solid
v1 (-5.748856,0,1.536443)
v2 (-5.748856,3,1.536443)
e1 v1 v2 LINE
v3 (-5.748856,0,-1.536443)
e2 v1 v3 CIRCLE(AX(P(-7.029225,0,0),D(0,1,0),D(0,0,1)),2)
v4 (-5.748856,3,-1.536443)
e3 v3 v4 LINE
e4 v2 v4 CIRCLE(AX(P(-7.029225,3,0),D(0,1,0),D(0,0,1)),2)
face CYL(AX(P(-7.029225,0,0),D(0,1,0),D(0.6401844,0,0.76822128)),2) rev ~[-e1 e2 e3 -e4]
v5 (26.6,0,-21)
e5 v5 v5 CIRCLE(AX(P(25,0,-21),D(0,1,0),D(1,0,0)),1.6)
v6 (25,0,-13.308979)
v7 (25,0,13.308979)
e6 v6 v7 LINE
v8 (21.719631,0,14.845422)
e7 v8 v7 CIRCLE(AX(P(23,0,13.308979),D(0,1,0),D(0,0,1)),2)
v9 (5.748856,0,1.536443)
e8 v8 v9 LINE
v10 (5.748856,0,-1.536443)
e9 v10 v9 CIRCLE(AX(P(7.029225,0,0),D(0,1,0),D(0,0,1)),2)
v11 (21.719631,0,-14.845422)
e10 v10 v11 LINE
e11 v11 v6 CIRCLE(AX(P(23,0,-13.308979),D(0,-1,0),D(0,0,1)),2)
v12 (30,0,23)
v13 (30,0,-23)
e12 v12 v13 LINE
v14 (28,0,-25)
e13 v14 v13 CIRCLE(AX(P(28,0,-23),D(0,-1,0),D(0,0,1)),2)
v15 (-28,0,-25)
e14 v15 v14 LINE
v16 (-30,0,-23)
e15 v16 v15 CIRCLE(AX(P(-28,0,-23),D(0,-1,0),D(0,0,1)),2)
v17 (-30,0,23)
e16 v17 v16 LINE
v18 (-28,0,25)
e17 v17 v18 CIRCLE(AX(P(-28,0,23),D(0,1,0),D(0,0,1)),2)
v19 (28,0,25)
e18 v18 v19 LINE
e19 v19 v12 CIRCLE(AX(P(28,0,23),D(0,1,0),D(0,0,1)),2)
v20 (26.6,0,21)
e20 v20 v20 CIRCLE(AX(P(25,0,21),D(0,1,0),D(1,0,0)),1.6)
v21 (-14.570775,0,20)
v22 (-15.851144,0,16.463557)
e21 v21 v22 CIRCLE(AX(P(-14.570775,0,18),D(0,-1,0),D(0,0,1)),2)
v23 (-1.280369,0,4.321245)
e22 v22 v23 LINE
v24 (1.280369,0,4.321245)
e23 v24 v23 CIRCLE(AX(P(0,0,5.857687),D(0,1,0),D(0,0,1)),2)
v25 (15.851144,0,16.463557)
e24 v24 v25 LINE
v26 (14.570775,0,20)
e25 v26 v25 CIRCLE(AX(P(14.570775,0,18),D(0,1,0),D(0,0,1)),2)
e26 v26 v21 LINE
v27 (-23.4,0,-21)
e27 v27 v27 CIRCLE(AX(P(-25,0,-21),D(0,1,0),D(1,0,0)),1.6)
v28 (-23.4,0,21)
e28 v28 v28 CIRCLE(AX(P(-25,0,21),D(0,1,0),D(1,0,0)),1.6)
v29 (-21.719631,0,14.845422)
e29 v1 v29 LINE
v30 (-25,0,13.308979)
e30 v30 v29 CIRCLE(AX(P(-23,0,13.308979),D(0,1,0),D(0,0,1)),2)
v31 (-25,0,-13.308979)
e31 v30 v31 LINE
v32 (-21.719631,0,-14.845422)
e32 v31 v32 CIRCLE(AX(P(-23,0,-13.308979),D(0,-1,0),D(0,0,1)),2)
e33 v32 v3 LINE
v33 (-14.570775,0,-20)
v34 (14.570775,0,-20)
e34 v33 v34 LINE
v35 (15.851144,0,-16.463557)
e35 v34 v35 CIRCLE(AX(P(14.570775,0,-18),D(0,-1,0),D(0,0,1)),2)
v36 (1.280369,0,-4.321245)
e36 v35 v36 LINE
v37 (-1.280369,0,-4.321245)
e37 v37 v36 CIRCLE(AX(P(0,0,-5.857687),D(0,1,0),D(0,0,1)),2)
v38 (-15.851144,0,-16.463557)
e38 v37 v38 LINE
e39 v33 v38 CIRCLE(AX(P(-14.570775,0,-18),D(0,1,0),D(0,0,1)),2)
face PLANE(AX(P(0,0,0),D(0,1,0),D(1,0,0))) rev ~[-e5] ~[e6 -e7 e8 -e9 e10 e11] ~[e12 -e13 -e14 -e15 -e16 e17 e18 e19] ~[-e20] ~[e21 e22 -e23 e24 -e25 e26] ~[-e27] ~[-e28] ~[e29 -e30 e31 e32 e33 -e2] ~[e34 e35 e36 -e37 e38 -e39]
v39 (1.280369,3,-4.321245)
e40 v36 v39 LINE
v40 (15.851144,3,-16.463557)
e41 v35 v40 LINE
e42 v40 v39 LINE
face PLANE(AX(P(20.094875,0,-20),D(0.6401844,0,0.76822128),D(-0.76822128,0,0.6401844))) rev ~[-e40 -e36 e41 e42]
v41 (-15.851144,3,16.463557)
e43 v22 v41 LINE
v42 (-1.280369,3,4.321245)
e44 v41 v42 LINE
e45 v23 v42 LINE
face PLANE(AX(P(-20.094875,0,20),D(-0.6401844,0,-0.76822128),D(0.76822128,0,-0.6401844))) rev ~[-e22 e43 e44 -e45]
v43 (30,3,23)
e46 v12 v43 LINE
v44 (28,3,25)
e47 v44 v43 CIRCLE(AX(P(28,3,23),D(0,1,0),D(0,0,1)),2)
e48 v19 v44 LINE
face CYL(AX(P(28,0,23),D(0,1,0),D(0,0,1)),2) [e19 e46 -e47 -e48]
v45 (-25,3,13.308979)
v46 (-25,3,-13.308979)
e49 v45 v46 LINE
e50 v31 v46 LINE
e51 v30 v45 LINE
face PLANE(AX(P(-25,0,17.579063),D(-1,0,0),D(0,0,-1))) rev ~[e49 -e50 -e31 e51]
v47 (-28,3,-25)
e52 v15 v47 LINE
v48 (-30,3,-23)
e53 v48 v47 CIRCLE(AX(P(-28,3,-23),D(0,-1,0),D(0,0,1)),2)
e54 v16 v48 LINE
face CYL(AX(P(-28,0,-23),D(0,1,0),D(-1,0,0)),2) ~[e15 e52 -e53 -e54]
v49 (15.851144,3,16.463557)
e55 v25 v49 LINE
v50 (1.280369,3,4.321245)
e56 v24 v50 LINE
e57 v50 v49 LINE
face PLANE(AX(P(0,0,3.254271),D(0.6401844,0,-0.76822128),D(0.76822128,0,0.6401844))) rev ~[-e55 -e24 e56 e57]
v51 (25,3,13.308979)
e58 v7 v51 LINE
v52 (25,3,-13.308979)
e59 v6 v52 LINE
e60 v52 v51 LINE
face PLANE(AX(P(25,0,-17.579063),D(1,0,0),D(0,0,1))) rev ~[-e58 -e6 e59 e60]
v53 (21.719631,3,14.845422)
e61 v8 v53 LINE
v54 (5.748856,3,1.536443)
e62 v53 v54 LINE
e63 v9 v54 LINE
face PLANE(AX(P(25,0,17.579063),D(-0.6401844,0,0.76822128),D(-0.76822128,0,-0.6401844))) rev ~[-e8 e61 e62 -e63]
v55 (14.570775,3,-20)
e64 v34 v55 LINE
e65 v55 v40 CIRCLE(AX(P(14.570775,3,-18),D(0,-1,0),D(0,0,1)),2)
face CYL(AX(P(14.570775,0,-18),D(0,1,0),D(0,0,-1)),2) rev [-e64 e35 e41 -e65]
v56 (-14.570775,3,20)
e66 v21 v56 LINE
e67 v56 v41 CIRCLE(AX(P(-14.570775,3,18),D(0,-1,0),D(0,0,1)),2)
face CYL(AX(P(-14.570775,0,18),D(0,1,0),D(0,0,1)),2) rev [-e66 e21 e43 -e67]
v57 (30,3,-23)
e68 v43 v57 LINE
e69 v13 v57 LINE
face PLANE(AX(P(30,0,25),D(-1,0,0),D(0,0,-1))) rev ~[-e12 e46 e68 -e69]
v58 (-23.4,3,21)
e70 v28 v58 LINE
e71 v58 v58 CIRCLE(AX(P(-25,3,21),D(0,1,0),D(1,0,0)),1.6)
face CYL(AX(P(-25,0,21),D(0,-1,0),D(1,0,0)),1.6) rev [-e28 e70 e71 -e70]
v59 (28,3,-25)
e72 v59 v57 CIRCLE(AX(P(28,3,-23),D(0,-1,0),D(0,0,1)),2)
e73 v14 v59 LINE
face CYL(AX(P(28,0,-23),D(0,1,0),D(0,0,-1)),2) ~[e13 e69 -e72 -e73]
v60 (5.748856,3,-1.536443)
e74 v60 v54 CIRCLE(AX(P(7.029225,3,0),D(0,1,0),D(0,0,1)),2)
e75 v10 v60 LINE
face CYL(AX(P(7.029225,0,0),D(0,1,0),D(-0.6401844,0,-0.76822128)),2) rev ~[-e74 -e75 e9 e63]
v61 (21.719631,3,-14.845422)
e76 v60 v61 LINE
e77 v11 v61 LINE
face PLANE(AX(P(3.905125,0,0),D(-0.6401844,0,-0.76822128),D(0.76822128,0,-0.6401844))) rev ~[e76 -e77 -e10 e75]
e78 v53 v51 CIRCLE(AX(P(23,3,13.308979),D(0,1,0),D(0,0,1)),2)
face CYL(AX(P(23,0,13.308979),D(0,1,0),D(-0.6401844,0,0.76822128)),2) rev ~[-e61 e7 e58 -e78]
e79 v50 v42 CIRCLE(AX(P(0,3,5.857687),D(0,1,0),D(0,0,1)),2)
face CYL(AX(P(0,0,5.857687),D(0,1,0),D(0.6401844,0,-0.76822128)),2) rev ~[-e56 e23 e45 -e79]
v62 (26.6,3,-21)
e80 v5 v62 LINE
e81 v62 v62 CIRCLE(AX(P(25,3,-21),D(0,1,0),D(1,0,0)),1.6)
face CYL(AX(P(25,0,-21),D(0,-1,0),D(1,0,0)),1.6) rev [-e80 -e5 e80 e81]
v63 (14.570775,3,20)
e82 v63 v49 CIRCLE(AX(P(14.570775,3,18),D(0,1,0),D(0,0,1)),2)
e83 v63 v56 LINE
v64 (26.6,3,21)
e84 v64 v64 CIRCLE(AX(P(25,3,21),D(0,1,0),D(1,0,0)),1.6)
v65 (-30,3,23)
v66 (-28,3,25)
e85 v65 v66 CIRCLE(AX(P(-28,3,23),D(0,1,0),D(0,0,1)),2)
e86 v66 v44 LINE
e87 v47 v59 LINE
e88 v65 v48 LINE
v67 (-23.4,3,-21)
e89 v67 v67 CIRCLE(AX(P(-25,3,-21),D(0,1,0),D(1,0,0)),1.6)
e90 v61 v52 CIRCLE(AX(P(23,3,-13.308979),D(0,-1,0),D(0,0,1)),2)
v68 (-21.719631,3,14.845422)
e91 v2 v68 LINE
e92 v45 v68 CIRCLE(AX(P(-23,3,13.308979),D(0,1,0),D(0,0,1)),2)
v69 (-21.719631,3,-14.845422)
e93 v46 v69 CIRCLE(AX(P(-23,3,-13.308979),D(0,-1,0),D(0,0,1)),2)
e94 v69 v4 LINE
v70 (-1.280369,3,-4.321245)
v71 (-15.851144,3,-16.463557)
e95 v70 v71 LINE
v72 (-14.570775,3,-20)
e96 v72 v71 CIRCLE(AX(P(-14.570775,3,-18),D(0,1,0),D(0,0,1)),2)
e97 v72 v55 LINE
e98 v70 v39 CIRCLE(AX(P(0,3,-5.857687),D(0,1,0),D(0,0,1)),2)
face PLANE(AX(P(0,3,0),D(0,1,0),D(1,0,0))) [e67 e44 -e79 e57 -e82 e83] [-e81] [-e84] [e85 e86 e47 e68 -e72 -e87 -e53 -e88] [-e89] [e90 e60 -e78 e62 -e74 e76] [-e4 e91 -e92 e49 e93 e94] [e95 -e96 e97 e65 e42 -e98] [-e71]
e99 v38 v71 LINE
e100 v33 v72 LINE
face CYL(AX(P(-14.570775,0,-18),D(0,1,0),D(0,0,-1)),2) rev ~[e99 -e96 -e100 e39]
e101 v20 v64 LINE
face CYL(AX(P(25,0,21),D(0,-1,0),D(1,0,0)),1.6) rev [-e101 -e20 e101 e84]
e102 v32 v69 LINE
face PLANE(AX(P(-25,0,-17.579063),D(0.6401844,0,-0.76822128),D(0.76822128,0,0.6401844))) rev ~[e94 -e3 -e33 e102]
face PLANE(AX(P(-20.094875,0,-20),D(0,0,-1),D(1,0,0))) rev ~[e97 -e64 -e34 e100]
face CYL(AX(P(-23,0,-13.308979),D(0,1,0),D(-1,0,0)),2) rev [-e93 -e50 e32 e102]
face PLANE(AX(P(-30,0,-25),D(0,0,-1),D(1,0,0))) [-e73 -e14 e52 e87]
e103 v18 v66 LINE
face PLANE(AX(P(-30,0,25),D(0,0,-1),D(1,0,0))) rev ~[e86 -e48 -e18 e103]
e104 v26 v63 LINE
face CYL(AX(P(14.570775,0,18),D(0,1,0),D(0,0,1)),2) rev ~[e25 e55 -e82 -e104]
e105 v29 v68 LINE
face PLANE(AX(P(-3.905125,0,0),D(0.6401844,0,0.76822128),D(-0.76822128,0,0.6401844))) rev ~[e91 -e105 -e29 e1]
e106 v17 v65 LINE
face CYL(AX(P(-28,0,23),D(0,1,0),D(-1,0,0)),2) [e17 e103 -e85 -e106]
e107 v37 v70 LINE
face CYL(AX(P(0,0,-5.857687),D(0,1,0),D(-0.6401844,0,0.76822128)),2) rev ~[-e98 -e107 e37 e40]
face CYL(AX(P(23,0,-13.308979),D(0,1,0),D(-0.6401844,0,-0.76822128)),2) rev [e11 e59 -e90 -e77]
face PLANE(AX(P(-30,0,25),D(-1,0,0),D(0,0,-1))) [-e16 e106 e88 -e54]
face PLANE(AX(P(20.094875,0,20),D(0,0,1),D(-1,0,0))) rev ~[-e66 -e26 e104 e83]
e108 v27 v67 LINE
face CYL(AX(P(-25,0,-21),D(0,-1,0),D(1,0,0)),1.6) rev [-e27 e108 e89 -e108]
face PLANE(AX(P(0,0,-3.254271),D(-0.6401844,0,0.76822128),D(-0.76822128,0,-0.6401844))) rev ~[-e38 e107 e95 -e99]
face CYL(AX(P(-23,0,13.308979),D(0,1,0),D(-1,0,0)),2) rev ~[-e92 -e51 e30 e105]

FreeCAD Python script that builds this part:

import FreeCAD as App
import Part
import Sketcher
from FreeCAD import Vector
Q = App.Units.Quantity


def edges_at(feature, points):
    """Names of the edges that pass closest to the given points."""
    edges = feature.Shape.Edges
    near = lambda p: min(range(len(edges)), key=lambda i: edges[i].distToShape(Part.Vertex(*p))[0])
    return sorted({f"Edge{near(p) + 1}" for p in points})

doc = App.newDocument("Part")
body = doc.addObject("PartDesign::Body", "Body")

# Sketch on XZ plane
sketch1 = body.newObject("Sketcher::SketchObject", "Sketch")
sketch1.AttachmentSupport = (doc.getObject("XZ_Plane"), [""])
sketch1.MapMode = "FlatFace"
sketch1.addGeometry([
    Part.LineSegment(Vector(-30, -25, 0), Vector(-30, 25, 0)),  # 0
    Part.LineSegment(Vector(-30, 25, 0), Vector(30, 25, 0)),  # 1
    Part.LineSegment(Vector(30, 25, 0), Vector(30, -25, 0)),  # 2
    Part.LineSegment(Vector(30, -25, 0), Vector(-30, -25, 0)),  # 3
    Part.Circle(Vector(-25, 21, 0), Vector(0, 0, 1), 1.6),  # 4
    Part.LineSegment(Vector(20.1, 20, 0), Vector(-20.1, 20, 0)),  # 5
    Part.LineSegment(Vector(-20.1, 20, 0), Vector(0, 3.3, 0)),  # 6
    Part.LineSegment(Vector(0, 3.3, 0), Vector(20.1, 20, 0)),  # 7
    Part.Circle(Vector(25, 21, 0), Vector(0, 0, 1), 1.6),  # 8
    Part.LineSegment(Vector(-25, 17.6, 0), Vector(-25, -17.6, 0)),  # 9
    Part.LineSegment(Vector(-25, -17.6, 0), Vector(-3.9, 0, 0)),  # 10
    Part.LineSegment(Vector(-3.9, 0, 0), Vector(-25, 17.6, 0)),  # 11
    Part.Circle(Vector(-25, -21, 0), Vector(0, 0, 1), 1.6),  # 12
    Part.LineSegment(Vector(3.9, 0, 0), Vector(25, -17.6, 0)),  # 13
    Part.LineSegment(Vector(25, -17.6, 0), Vector(25, 17.6, 0)),  # 14
    Part.LineSegment(Vector(25, 17.6, 0), Vector(3.9, 0, 0)),  # 15
    Part.LineSegment(Vector(-20.1, -20, 0), Vector(20.1, -20, 0)),  # 16
    Part.LineSegment(Vector(20.1, -20, 0), Vector(0, -3.3, 0)),  # 17
    Part.LineSegment(Vector(0, -3.3, 0), Vector(-20.1, -20, 0)),  # 18
    Part.Circle(Vector(25, -21, 0), Vector(0, 0, 1), 1.6),  # 19
], False)
sketch1.addConstraint([
    Sketcher.Constraint("Coincident", 0, 2, 1, 1),
    Sketcher.Constraint("Coincident", 1, 2, 2, 1),
    Sketcher.Constraint("Coincident", 2, 2, 3, 1),
    Sketcher.Constraint("Coincident", 3, 2, 0, 1),
    Sketcher.Constraint("Coincident", 5, 2, 6, 1),
    Sketcher.Constraint("Coincident", 6, 2, 7, 1),
    Sketcher.Constraint("Coincident", 7, 2, 5, 1),
    Sketcher.Constraint("Coincident", 9, 2, 10, 1),
    Sketcher.Constraint("Coincident", 10, 2, 11, 1),
    Sketcher.Constraint("Coincident", 11, 2, 9, 1),
    Sketcher.Constraint("Coincident", 13, 2, 14, 1),
    Sketcher.Constraint("Coincident", 14, 2, 15, 1),
    Sketcher.Constraint("Coincident", 15, 2, 13, 1),
    Sketcher.Constraint("Coincident", 16, 2, 17, 1),
    Sketcher.Constraint("Coincident", 17, 2, 18, 1),
    Sketcher.Constraint("Coincident", 18, 2, 16, 1),
    Sketcher.Constraint("Vertical", 0),
    Sketcher.Constraint("Horizontal", 1),
    Sketcher.Constraint("Vertical", 2),
    Sketcher.Constraint("Horizontal", 3),
    Sketcher.Constraint("Horizontal", 5),
    Sketcher.Constraint("Vertical", 9),
    Sketcher.Constraint("Vertical", 14),
    Sketcher.Constraint("Horizontal", 16),
    Sketcher.Constraint("Equal", 4, 8),
    Sketcher.Constraint("Equal", 8, 12),
    Sketcher.Constraint("Equal", 12, 19),
    Sketcher.Constraint("Symmetric", 8, 3, 12, 3, -1, 1),
    Sketcher.Constraint("Symmetric", 4, 3, 19, 3, -1, 1),
    Sketcher.Constraint("Symmetric", 0, 2, 2, 2, -1, 1),
    Sketcher.Constraint("Symmetric", 11, 2, 13, 2, -1, 1),
    Sketcher.Constraint("Symmetric", 10, 2, 15, 2, -1, 1),
    Sketcher.Constraint("Symmetric", 5, 2, 16, 2, -1, 1),
    Sketcher.Constraint("Symmetric", 6, 2, 17, 2, -1, 1),
    Sketcher.Constraint("Symmetric", 4, 3, 8, 3, -2),
    Sketcher.Constraint("PointOnObject", 6, 2, -2),
    Sketcher.Constraint("PointOnObject", 10, 2, -1),
    Sketcher.Constraint("Parallel", 7, 10),
    Sketcher.Constraint("Parallel", 6, 11),
    Sketcher.Constraint("Parallel", 10, 15),
    Sketcher.Constraint("Parallel", 15, 18),
    Sketcher.Constraint("Horizontal", 9, 2, 13, 2),
    Sketcher.Constraint("Vertical", 12, 3, 9, 2),
    Sketcher.Constraint("Diameter", 4, Q("3.2 mm")),
    Sketcher.Constraint("DistanceX", 1, 1, 1, 2, Q("60 mm")),
    Sketcher.Constraint("DistanceY", 0, 1, 0, 2, Q("50 mm")),
    Sketcher.Constraint("DistanceX", 4, 3, -1, 1, Q("25 mm")),
    Sketcher.Constraint("DistanceY", -1, 1, 4, 3, Q("21 mm")),
    Sketcher.Constraint("DistanceY", -1, 1, 5, 2, Q("20 mm")),
    Sketcher.Constraint("DistanceX", 5, 2, 5, 1, Q("40.18975 mm")),
    Sketcher.Constraint("DistanceY", 9, 2, 9, 1, Q("35.158125 mm")),
    Sketcher.Constraint("DistanceY", -1, 1, 6, 2, Q("3.254271 mm")),
])
pad1 = body.newObject("PartDesign::Pad", "Pad")
pad1.Profile = sketch1
pad1.Length = 3
pad1.Reversed = True
doc.recompute()

fillet = body.newObject("PartDesign::Fillet", "Fillet")
fillet.Base = (pad1, edges_at(pad1, [
    (30, 1.5, 25),
    (-30, 1.5, 25),
    (-30, 1.5, -25),
    (30, 1.5, -25),
]))
fillet.Radius = 2
doc.recompute()

fillet2 = body.newObject("PartDesign::Fillet", "Fillet001")
fillet2.Base = (fillet, edges_at(fillet, [
    (-25, 1.5, -17.579),
    (-25, 1.5, 17.579),
    (-3.905, 1.5, 0),
    (-20.095, 1.5, 20),
    (20.095, 1.5, 20),
    (0, 1.5, 3.254),
    (3.905, 1.5, 0),
    (25, 1.5, 17.579),
    (25, 1.5, -17.579),
    (20.095, 1.5, -20),
    (-20.095, 1.5, -20),
    (0, 1.5, -3.254),
]))
fillet2.Radius = 2

doc.recompute()
